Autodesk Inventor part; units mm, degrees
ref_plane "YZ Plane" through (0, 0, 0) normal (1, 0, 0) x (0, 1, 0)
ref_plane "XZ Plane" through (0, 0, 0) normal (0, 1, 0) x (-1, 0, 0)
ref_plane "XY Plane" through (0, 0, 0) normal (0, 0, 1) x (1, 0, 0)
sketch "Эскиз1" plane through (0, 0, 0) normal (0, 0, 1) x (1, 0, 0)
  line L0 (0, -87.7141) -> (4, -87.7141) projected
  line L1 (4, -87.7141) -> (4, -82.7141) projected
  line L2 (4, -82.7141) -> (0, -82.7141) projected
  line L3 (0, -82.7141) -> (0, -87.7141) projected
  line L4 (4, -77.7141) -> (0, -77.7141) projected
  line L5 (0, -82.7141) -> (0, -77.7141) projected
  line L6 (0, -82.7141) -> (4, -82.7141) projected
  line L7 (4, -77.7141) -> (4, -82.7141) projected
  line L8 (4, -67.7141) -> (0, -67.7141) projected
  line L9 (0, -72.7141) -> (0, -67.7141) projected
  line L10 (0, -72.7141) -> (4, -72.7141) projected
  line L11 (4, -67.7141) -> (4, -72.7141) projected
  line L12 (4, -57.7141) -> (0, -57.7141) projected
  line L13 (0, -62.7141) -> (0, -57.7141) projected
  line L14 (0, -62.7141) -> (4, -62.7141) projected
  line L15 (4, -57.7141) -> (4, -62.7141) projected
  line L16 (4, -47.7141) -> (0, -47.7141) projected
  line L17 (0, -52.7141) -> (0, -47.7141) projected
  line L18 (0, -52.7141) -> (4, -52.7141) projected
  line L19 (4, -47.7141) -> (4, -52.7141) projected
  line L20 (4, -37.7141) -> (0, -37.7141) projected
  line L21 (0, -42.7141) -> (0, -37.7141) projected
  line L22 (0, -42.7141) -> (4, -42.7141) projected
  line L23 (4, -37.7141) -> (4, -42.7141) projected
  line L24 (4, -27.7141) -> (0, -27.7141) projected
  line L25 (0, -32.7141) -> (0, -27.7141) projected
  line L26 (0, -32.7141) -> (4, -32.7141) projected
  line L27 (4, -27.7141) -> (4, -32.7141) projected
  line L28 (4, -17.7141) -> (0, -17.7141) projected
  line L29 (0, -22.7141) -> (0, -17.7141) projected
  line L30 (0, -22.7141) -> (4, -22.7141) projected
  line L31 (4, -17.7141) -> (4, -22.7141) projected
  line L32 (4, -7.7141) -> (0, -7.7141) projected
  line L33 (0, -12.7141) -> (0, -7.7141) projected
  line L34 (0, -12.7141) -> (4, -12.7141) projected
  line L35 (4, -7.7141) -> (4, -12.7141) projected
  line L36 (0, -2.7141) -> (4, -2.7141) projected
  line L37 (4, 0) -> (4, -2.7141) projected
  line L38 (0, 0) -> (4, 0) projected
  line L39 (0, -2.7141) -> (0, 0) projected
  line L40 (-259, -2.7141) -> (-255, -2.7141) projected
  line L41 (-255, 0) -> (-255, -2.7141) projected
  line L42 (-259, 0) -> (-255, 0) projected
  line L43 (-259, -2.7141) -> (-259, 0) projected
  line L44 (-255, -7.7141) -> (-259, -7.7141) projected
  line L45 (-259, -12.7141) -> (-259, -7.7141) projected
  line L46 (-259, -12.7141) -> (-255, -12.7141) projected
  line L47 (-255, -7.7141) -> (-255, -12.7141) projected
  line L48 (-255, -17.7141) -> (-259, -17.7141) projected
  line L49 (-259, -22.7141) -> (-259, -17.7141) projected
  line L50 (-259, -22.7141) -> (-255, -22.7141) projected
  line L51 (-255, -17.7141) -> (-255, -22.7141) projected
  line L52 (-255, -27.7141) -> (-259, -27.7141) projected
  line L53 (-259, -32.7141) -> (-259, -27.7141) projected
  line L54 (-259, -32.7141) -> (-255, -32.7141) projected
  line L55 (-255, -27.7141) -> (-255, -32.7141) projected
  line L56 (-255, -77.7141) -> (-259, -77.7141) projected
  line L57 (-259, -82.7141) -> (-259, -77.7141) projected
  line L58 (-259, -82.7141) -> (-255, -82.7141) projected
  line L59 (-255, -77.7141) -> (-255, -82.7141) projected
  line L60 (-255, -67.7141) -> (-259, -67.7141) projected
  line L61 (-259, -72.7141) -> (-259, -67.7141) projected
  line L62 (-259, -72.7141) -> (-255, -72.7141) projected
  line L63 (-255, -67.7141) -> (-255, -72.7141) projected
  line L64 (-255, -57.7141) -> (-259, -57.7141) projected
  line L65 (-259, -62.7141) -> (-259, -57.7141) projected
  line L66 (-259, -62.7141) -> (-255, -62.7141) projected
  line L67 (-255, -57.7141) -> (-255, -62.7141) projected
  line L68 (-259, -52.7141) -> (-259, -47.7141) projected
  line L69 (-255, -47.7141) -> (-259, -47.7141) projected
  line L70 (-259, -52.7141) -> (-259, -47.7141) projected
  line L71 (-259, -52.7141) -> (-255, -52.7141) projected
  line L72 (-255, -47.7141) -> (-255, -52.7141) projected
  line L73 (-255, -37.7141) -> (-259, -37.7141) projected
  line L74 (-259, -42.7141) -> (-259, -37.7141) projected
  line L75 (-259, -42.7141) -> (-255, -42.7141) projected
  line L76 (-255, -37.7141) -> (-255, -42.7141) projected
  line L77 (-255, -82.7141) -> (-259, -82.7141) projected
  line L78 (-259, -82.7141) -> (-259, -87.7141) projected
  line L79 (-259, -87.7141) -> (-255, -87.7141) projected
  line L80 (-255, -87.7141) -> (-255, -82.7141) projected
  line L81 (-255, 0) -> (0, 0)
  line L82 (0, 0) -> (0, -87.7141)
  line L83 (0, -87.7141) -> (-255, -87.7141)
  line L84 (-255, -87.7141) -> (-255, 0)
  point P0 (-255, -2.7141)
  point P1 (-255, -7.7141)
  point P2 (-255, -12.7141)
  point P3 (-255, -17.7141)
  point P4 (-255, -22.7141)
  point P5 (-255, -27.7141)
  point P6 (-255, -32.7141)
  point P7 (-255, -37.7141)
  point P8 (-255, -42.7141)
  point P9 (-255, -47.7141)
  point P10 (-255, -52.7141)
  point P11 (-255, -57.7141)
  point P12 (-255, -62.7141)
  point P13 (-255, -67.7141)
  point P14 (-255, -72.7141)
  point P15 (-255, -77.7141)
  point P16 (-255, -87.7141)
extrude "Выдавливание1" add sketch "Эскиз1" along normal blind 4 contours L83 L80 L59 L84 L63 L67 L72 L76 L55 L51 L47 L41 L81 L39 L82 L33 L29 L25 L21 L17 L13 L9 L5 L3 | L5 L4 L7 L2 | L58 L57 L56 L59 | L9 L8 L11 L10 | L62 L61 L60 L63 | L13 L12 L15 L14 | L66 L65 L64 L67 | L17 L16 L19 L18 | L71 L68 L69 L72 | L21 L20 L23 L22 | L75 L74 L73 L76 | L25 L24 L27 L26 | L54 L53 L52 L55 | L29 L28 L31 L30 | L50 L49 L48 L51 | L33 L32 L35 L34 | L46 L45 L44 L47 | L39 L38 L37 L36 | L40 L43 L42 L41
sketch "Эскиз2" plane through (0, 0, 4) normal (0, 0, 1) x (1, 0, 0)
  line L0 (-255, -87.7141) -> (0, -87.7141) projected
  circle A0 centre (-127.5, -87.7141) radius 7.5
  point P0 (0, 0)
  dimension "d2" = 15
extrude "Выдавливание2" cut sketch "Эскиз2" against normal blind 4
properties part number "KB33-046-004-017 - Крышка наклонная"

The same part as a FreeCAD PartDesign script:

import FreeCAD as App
import Part
import Sketcher
from FreeCAD import Vector

doc = App.newDocument("Part")
body = doc.addObject("PartDesign::Body", "Body")

# Sketch on XY plane
sketch1 = doc.addObject("Sketcher::SketchObject", "Sketch")
body.addObject(sketch1)
sketch1.AttachmentSupport = (doc.XY_Plane, [""])
sketch1.MapMode = "FlatFace"
sketch1.addGeometry([
    Part.LineSegment(Vector(-255, -87.7, 0), Vector(0, -87.7, 0)),  # 0
    Part.LineSegment(Vector(0, -87.7, 0), Vector(0, -82.7, 0)),  # 1
    Part.LineSegment(Vector(0, -82.7, 0), Vector(4, -82.7, 0)),  # 2
    Part.LineSegment(Vector(4, -82.7, 0), Vector(4, -77.7, 0)),  # 3
    Part.LineSegment(Vector(4, -77.7, 0), Vector(0, -77.7, 0)),  # 4
    Part.LineSegment(Vector(0, -77.7, 0), Vector(0, -72.7, 0)),  # 5
    Part.LineSegment(Vector(0, -72.7, 0), Vector(4, -72.7, 0)),  # 6
    Part.LineSegment(Vector(4, -72.7, 0), Vector(4, -67.7, 0)),  # 7
    Part.LineSegment(Vector(4, -67.7, 0), Vector(0, -67.7, 0)),  # 8
    Part.LineSegment(Vector(0, -67.7, 0), Vector(0, -62.7, 0)),  # 9
    Part.LineSegment(Vector(0, -62.7, 0), Vector(4, -62.7, 0)),  # 10
    Part.LineSegment(Vector(4, -62.7, 0), Vector(4, -57.7, 0)),  # 11
    Part.LineSegment(Vector(4, -57.7, 0), Vector(0, -57.7, 0)),  # 12
    Part.LineSegment(Vector(0, -57.7, 0), Vector(0, -52.7, 0)),  # 13
    Part.LineSegment(Vector(0, -52.7, 0), Vector(4, -52.7, 0)),  # 14
    Part.LineSegment(Vector(4, -52.7, 0), Vector(4, -47.7, 0)),  # 15
    Part.LineSegment(Vector(4, -47.7, 0), Vector(0, -47.7, 0)),  # 16
    Part.LineSegment(Vector(0, -47.7, 0), Vector(0, -42.7, 0)),  # 17
    Part.LineSegment(Vector(0, -42.7, 0), Vector(4, -42.7, 0)),  # 18
    Part.LineSegment(Vector(4, -42.7, 0), Vector(4, -37.7, 0)),  # 19
    Part.LineSegment(Vector(4, -37.7, 0), Vector(0, -37.7, 0)),  # 20
    Part.LineSegment(Vector(0, -37.7, 0), Vector(0, -32.7, 0)),  # 21
    Part.LineSegment(Vector(0, -32.7, 0), Vector(4, -32.7, 0)),  # 22
    Part.LineSegment(Vector(4, -32.7, 0), Vector(4, -27.7, 0)),  # 23
    Part.LineSegment(Vector(4, -27.7, 0), Vector(0, -27.7, 0)),  # 24
    Part.LineSegment(Vector(0, -27.7, 0), Vector(0, -22.7, 0)),  # 25
    Part.LineSegment(Vector(0, -22.7, 0), Vector(4, -22.7, 0)),  # 26
    Part.LineSegment(Vector(4, -22.7, 0), Vector(4, -17.7, 0)),  # 27
    Part.LineSegment(Vector(4, -17.7, 0), Vector(0, -17.7, 0)),  # 28
    Part.LineSegment(Vector(0, -17.7, 0), Vector(0, -12.7, 0)),  # 29
    Part.LineSegment(Vector(0, -12.7, 0), Vector(4, -12.7, 0)),  # 30
    Part.LineSegment(Vector(4, -12.7, 0), Vector(4, -7.7, 0)),  # 31
    Part.LineSegment(Vector(4, -7.7, 0), Vector(0, -7.7, 0)),  # 32
    Part.LineSegment(Vector(0, -7.7, 0), Vector(0, -2.7, 0)),  # 33
    Part.LineSegment(Vector(0, -2.7, 0), Vector(4, -2.7, 0)),  # 34
    Part.LineSegment(Vector(4, -2.7, 0), Vector(4, 0, 0)),  # 35
    Part.LineSegment(Vector(4, 0, 0), Vector(-259, 0, 0)),  # 36
    Part.LineSegment(Vector(-259, 0, 0), Vector(-259, -2.7, 0)),  # 37
    Part.LineSegment(Vector(-259, -2.7, 0), Vector(-255, -2.7, 0)),  # 38
    Part.LineSegment(Vector(-255, -2.7, 0), Vector(-255, -7.7, 0)),  # 39
    Part.LineSegment(Vector(-255, -7.7, 0), Vector(-259, -7.7, 0)),  # 40
    Part.LineSegment(Vector(-259, -7.7, 0), Vector(-259, -12.7, 0)),  # 41
    Part.LineSegment(Vector(-259, -12.7, 0), Vector(-255, -12.7, 0)),  # 42
    Part.LineSegment(Vector(-255, -12.7, 0), Vector(-255, -17.7, 0)),  # 43
    Part.LineSegment(Vector(-255, -17.7, 0), Vector(-259, -17.7, 0)),  # 44
    Part.LineSegment(Vector(-259, -17.7, 0), Vector(-259, -22.7, 0)),  # 45
    Part.LineSegment(Vector(-259, -22.7, 0), Vector(-255, -22.7, 0)),  # 46
    Part.LineSegment(Vector(-255, -22.7, 0), Vector(-255, -27.7, 0)),  # 47
    Part.LineSegment(Vector(-255, -27.7, 0), Vector(-259, -27.7, 0)),  # 48
    Part.LineSegment(Vector(-259, -27.7, 0), Vector(-259, -32.7, 0)),  # 49
    Part.LineSegment(Vector(-259, -32.7, 0), Vector(-255, -32.7, 0)),  # 50
    Part.LineSegment(Vector(-255, -32.7, 0), Vector(-255, -37.7, 0)),  # 51
    Part.LineSegment(Vector(-255, -37.7, 0), Vector(-259, -37.7, 0)),  # 52
    Part.LineSegment(Vector(-259, -37.7, 0), Vector(-259, -42.7, 0)),  # 53
    Part.LineSegment(Vector(-259, -42.7, 0), Vector(-255, -42.7, 0)),  # 54
    Part.LineSegment(Vector(-255, -42.7, 0), Vector(-255, -47.7, 0)),  # 55
    Part.LineSegment(Vector(-255, -47.7, 0), Vector(-259, -47.7, 0)),  # 56
    Part.LineSegment(Vector(-259, -47.7, 0), Vector(-259, -52.7, 0)),  # 57
    Part.LineSegment(Vector(-259, -52.7, 0), Vector(-255, -52.7, 0)),  # 58
    Part.LineSegment(Vector(-255, -52.7, 0), Vector(-255, -57.7, 0)),  # 59
    Part.LineSegment(Vector(-255, -57.7, 0), Vector(-259, -57.7, 0)),  # 60
    Part.LineSegment(Vector(-259, -57.7, 0), Vector(-259, -62.7, 0)),  # 61
    Part.LineSegment(Vector(-259, -62.7, 0), Vector(-255, -62.7, 0)),  # 62
    Part.LineSegment(Vector(-255, -62.7, 0), Vector(-255, -67.7, 0)),  # 63
    Part.LineSegment(Vector(-255, -67.7, 0), Vector(-259, -67.7, 0)),  # 64
    Part.LineSegment(Vector(-259, -67.7, 0), Vector(-259, -72.7, 0)),  # 65
    Part.LineSegment(Vector(-259, -72.7, 0), Vector(-255, -72.7, 0)),  # 66
    Part.LineSegment(Vector(-255, -72.7, 0), Vector(-255, -77.7, 0)),  # 67
    Part.LineSegment(Vector(-255, -77.7, 0), Vector(-259, -77.7, 0)),  # 68
    Part.LineSegment(Vector(-259, -77.7, 0), Vector(-259, -82.7, 0)),  # 69
    Part.LineSegment(Vector(-259, -82.7, 0), Vector(-255, -82.7, 0)),  # 70
    Part.LineSegment(Vector(-255, -82.7, 0), Vector(-255, -87.7, 0)),  # 71
], False)
sketch1.addConstraint([
    Sketcher.Constraint("Coincident", 0, 2, 1, 1),
    Sketcher.Constraint("Coincident", 1, 2, 2, 1),
    Sketcher.Constraint("Coincident", 2, 2, 3, 1),
    Sketcher.Constraint("Coincident", 3, 2, 4, 1),
    Sketcher.Constraint("Coincident", 4, 2, 5, 1),
    Sketcher.Constraint("Coincident", 5, 2, 6, 1),
    Sketcher.Constraint("Coincident", 6, 2, 7, 1),
    Sketcher.Constraint("Coincident", 7, 2, 8, 1),
    Sketcher.Constraint("Coincident", 8, 2, 9, 1),
    Sketcher.Constraint("Coincident", 9, 2, 10, 1),
    Sketcher.Constraint("Coincident", 10, 2, 11, 1),
    Sketcher.Constraint("Coincident", 11, 2, 12, 1),
    Sketcher.Constraint("Coincident", 12, 2, 13, 1),
    Sketcher.Constraint("Coincident", 13, 2, 14, 1),
    Sketcher.Constraint("Coincident", 14, 2, 15, 1),
    Sketcher.Constraint("Coincident", 15, 2, 16, 1),
    Sketcher.Constraint("Coincident", 16, 2, 17, 1),
    Sketcher.Constraint("Coincident", 17, 2, 18, 1),
    Sketcher.Constraint("Coincident", 18, 2, 19, 1),
    Sketcher.Constraint("Coincident", 19, 2, 20, 1),
    Sketcher.Constraint("Coincident", 20, 2, 21, 1),
    Sketcher.Constraint("Coincident", 21, 2, 22, 1),
    Sketcher.Constraint("Coincident", 22, 2, 23, 1),
    Sketcher.Constraint("Coincident", 23, 2, 24, 1),
    Sketcher.Constraint("Coincident", 24, 2, 25, 1),
    Sketcher.Constraint("Coincident", 25, 2, 26, 1),
    Sketcher.Constraint("Coincident", 26, 2, 27, 1),
    Sketcher.Constraint("Coincident", 27, 2, 28, 1),
    Sketcher.Constraint("Coincident", 28, 2, 29, 1),
    Sketcher.Constraint("Coincident", 29, 2, 30, 1),
    Sketcher.Constraint("Coincident", 30, 2, 31, 1),
    Sketcher.Constraint("Coincident", 31, 2, 32, 1),
    Sketcher.Constraint("Coincident", 32, 2, 33, 1),
    Sketcher.Constraint("Coincident", 33, 2, 34, 1),
    Sketcher.Constraint("Coincident", 34, 2, 35, 1),
    Sketcher.Constraint("Coincident", 35, 2, 36, 1),
    Sketcher.Constraint("Coincident", 36, 2, 37, 1),
    Sketcher.Constraint("Coincident", 37, 2, 38, 1),
    Sketcher.Constraint("Coincident", 38, 2, 39, 1),
    Sketcher.Constraint("Coincident", 39, 2, 40, 1),
    Sketcher.Constraint("Coincident", 40, 2, 41, 1),
    Sketcher.Constraint("Coincident", 41, 2, 42, 1),
    Sketcher.Constraint("Coincident", 42, 2, 43, 1),
    Sketcher.Constraint("Coincident", 43, 2, 44, 1),
    Sketcher.Constraint("Coincident", 44, 2, 45, 1),
    Sketcher.Constraint("Coincident", 45, 2, 46, 1),
    Sketcher.Constraint("Coincident", 46, 2, 47, 1),
    Sketcher.Constraint("Coincident", 47, 2, 48, 1),
    Sketcher.Constraint("Coincident", 48, 2, 49, 1),
    Sketcher.Constraint("Coincident", 49, 2, 50, 1),
    Sketcher.Constraint("Coincident", 50, 2, 51, 1),
    Sketcher.Constraint("Coincident", 51, 2, 52, 1),
    Sketcher.Constraint("Coincident", 52, 2, 53, 1),
    Sketcher.Constraint("Coincident", 53, 2, 54, 1),
    Sketcher.Constraint("Coincident", 54, 2, 55, 1),
    Sketcher.Constraint("Coincident", 55, 2, 56, 1),
    Sketcher.Constraint("Coincident", 56, 2, 57, 1),
    Sketcher.Constraint("Coincident", 57, 2, 58, 1),
    Sketcher.Constraint("Coincident", 58, 2, 59, 1),
    Sketcher.Constraint("Coincident", 59, 2, 60, 1),
    Sketcher.Constraint("Coincident", 60, 2, 61, 1),
    Sketcher.Constraint("Coincident", 61, 2, 62, 1),
    Sketcher.Constraint("Coincident", 62, 2, 63, 1),
    Sketcher.Constraint("Coincident", 63, 2, 64, 1),
    Sketcher.Constraint("Coincident", 64, 2, 65, 1),
    Sketcher.Constraint("Coincident", 65, 2, 66, 1),
    Sketcher.Constraint("Coincident", 66, 2, 67, 1),
    Sketcher.Constraint("Coincident", 67, 2, 68, 1),
    Sketcher.Constraint("Coincident", 68, 2, 69, 1),
    Sketcher.Constraint("Coincident", 69, 2, 70, 1),
    Sketcher.Constraint("Coincident", 70, 2, 71, 1),
    Sketcher.Constraint("Coincident", 71, 2, 0, 1),
    Sketcher.Constraint("Horizontal", 0),
    Sketcher.Constraint("Vertical", 1),
    Sketcher.Constraint("Horizontal", 2),
    Sketcher.Constraint("Vertical", 3),
    Sketcher.Constraint("Horizontal", 4),
    Sketcher.Constraint("Vertical", 5),
    Sketcher.Constraint("Horizontal", 6),
    Sketcher.Constraint("Vertical", 7),
    Sketcher.Constraint("Horizontal", 8),
    Sketcher.Constraint("Vertical", 9),
    Sketcher.Constraint("Horizontal", 10),
    Sketcher.Constraint("Vertical", 11),
    Sketcher.Constraint("Horizontal", 12),
    Sketcher.Constraint("Vertical", 13),
    Sketcher.Constraint("Horizontal", 14),
    Sketcher.Constraint("Vertical", 15),
    Sketcher.Constraint("Horizontal", 16),
    Sketcher.Constraint("Vertical", 17),
    Sketcher.Constraint("Horizontal", 18),
    Sketcher.Constraint("Vertical", 19),
    Sketcher.Constraint("Horizontal", 20),
    Sketcher.Constraint("Vertical", 21),
    Sketcher.Constraint("Horizontal", 22),
    Sketcher.Constraint("Vertical", 23),
    Sketcher.Constraint("Horizontal", 24),
    Sketcher.Constraint("Vertical", 25),
    Sketcher.Constraint("Horizontal", 26),
    Sketcher.Constraint("Vertical", 27),
    Sketcher.Constraint("Horizontal", 28),
    Sketcher.Constraint("Vertical", 29),
    Sketcher.Constraint("Horizontal", 30),
    Sketcher.Constraint("Vertical", 31),
    Sketcher.Constraint("Horizontal", 32),
    Sketcher.Constraint("Vertical", 33),
    Sketcher.Constraint("Horizontal", 34),
    Sketcher.Constraint("Vertical", 35),
    Sketcher.Constraint("Horizontal", 36),
    Sketcher.Constraint("Vertical", 37),
    Sketcher.Constraint("Horizontal", 38),
    Sketcher.Constraint("Vertical", 39),
    Sketcher.Constraint("Horizontal", 40),
    Sketcher.Constraint("Vertical", 41),
    Sketcher.Constraint("Horizontal", 42),
    Sketcher.Constraint("Vertical", 43),
    Sketcher.Constraint("Horizontal", 44),
    Sketcher.Constraint("Vertical", 45),
    Sketcher.Constraint("Horizontal", 46),
    Sketcher.Constraint("Vertical", 47),
    Sketcher.Constraint("Horizontal", 48),
    Sketcher.Constraint("Vertical", 49),
    Sketcher.Constraint("Horizontal", 50),
    Sketcher.Constraint("Vertical", 51),
    Sketcher.Constraint("Horizontal", 52),
    Sketcher.Constraint("Vertical", 53),
    Sketcher.Constraint("Horizontal", 54),
    Sketcher.Constraint("Vertical", 55),
    Sketcher.Constraint("Horizontal", 56),
    Sketcher.Constraint("Vertical", 57),
    Sketcher.Constraint("Horizontal", 58),
    Sketcher.Constraint("Vertical", 59),
    Sketcher.Constraint("Horizontal", 60),
    Sketcher.Constraint("Vertical", 61),
    Sketcher.Constraint("Horizontal", 62),
    Sketcher.Constraint("Vertical", 63),
    Sketcher.Constraint("Horizontal", 64),
    Sketcher.Constraint("Vertical", 65),
    Sketcher.Constraint("Horizontal", 66),
    Sketcher.Constraint("Vertical", 67),
    Sketcher.Constraint("Horizontal", 68),
    Sketcher.Constraint("Vertical", 69),
    Sketcher.Constraint("Horizontal", 70),
    Sketcher.Constraint("Vertical", 71),
    Sketcher.Constraint("PointOnObject", 0, 2, -2),
    Sketcher.Constraint("PointOnObject", 4, 2, -2),
    Sketcher.Constraint("PointOnObject", 8, 2, -2),
    Sketcher.Constraint("PointOnObject", 12, 2, -2),
    Sketcher.Constraint("PointOnObject", 16, 2, -2),
    Sketcher.Constraint("PointOnObject", 20, 2, -2),
    Sketcher.Constraint("PointOnObject", 24, 2, -2),
    Sketcher.Constraint("PointOnObject", 28, 2, -2),
    Sketcher.Constraint("PointOnObject", 32, 2, -2),
    Sketcher.Constraint("PointOnObject", 35, 2, -1),
    Sketcher.Constraint("Horizontal", 34, 2, 37, 2),
    Sketcher.Constraint("Horizontal", 32, 2, 39, 2),
    Sketcher.Constraint("Horizontal", 30, 2, 41, 2),
    Sketcher.Constraint("Horizontal", 28, 2, 43, 2),
    Sketcher.Constraint("Horizontal", 26, 2, 45, 2),
    Sketcher.Constraint("Horizontal", 24, 2, 47, 2),
    Sketcher.Constraint("Horizontal", 22, 2, 49, 2),
    Sketcher.Constraint("Horizontal", 20, 2, 51, 2),
    Sketcher.Constraint("Horizontal", 18, 2, 53, 2),
    Sketcher.Constraint("Horizontal", 16, 2, 55, 2),
    Sketcher.Constraint("Horizontal", 14, 2, 57, 2),
    Sketcher.Constraint("Horizontal", 12, 2, 59, 2),
    Sketcher.Constraint("Horizontal", 10, 2, 61, 2),
    Sketcher.Constraint("Horizontal", 8, 2, 63, 2),
    Sketcher.Constraint("Horizontal", 6, 2, 65, 2),
    Sketcher.Constraint("Horizontal", 4, 2, 67, 2),
    Sketcher.Constraint("Horizontal", 2, 2, 69, 2),
    Sketcher.Constraint("Vertical", 3, 2, 6, 2),
    Sketcher.Constraint("Vertical", 7, 2, 10, 2),
    Sketcher.Constraint("Vertical", 11, 2, 14, 2),
    Sketcher.Constraint("Vertical", 15, 2, 18, 2),
    Sketcher.Constraint("Vertical", 19, 2, 22, 2),
    Sketcher.Constraint("Vertical", 23, 2, 26, 2),
    Sketcher.Constraint("Vertical", 27, 2, 30, 2),
    Sketcher.Constraint("Vertical", 31, 2, 34, 2),
    Sketcher.Constraint("Vertical", 37, 2, 40, 2),
    Sketcher.Constraint("Vertical", 39, 2, 42, 2),
    Sketcher.Constraint("Vertical", 41, 2, 44, 2),
    Sketcher.Constraint("Vertical", 43, 2, 46, 2),
    Sketcher.Constraint("Vertical", 45, 2, 48, 2),
    Sketcher.Constraint("Vertical", 47, 2, 50, 2),
    Sketcher.Constraint("Vertical", 49, 2, 52, 2),
    Sketcher.Constraint("Vertical", 51, 2, 54, 2),
    Sketcher.Constraint("Vertical", 53, 2, 56, 2),
    Sketcher.Constraint("Vertical", 55, 2, 58, 2),
    Sketcher.Constraint("Vertical", 57, 2, 60, 2),
    Sketcher.Constraint("Vertical", 59, 2, 62, 2),
    Sketcher.Constraint("Vertical", 61, 2, 64, 2),
    Sketcher.Constraint("Vertical", 63, 2, 66, 2),
    Sketcher.Constraint("Vertical", 65, 2, 68, 2),
    Sketcher.Constraint("Vertical", 67, 2, 70, 2),
    Sketcher.Constraint("Equal", 34, 38),
    Sketcher.Constraint("Equal", 1, 3),
    Sketcher.Constraint("Equal", 3, 5),
    Sketcher.Constraint("Equal", 5, 7),
    Sketcher.Constraint("Equal", 7, 9),
    Sketcher.Constraint("Equal", 9, 11),
    Sketcher.Constraint("Equal", 11, 13),
    Sketcher.Constraint("Equal", 13, 15),
    Sketcher.Constraint("Equal", 15, 17),
    Sketcher.Constraint("Equal", 17, 19),
    Sketcher.Constraint("Equal", 19, 21),
    Sketcher.Constraint("Equal", 21, 23),
    Sketcher.Constraint("Equal", 23, 25),
    Sketcher.Constraint("Equal", 25, 27),
    Sketcher.Constraint("Equal", 27, 29),
    Sketcher.Constraint("Equal", 29, 31),
    Sketcher.Constraint("Equal", 31, 33),
    Sketcher.Constraint("DistanceX", 0, 1, 0, 2, 255.0),
    Sketcher.Constraint("DistanceX", 2, 1, 2, 2, 4.0),
    Sketcher.Constraint("DistanceY", 1, 1, 1, 2, 5.0),
    Sketcher.Constraint("DistanceY", 35, 1, 35, 2, 2.714),
])
pad1 = doc.addObject("PartDesign::Pad", "Pad")
body.addObject(pad1)
pad1.Profile = sketch1
pad1.Length = 4

# Sketch on XY plane
sketch2 = doc.addObject("Sketcher::SketchObject", "Sketch001")
body.addObject(sketch2)
sketch2.AttachmentSupport = (doc.XY_Plane, [""])
sketch2.MapMode = "FlatFace"
sketch2.AttachmentOffset = App.Placement(Vector(0, 0, 4), App.Rotation())
sketch2.addGeometry(Part.Circle(Vector(-128, -88, 0), Vector(0, 0, 1), 8), False)
sketch2.addConstraint([
    Sketcher.Constraint("Diameter", 0, 15.0),
    Sketcher.Constraint("DistanceX", 0, 3, -1, 1, 127.5),
    Sketcher.Constraint("DistanceY", 0, 3, -1, 1, 87.714),
])
pocket1 = doc.addObject("PartDesign::Pocket", "Pocket")
body.addObject(pocket1)
pocket1.Profile = sketch2
pocket1.Length = 4

doc.recompute()
